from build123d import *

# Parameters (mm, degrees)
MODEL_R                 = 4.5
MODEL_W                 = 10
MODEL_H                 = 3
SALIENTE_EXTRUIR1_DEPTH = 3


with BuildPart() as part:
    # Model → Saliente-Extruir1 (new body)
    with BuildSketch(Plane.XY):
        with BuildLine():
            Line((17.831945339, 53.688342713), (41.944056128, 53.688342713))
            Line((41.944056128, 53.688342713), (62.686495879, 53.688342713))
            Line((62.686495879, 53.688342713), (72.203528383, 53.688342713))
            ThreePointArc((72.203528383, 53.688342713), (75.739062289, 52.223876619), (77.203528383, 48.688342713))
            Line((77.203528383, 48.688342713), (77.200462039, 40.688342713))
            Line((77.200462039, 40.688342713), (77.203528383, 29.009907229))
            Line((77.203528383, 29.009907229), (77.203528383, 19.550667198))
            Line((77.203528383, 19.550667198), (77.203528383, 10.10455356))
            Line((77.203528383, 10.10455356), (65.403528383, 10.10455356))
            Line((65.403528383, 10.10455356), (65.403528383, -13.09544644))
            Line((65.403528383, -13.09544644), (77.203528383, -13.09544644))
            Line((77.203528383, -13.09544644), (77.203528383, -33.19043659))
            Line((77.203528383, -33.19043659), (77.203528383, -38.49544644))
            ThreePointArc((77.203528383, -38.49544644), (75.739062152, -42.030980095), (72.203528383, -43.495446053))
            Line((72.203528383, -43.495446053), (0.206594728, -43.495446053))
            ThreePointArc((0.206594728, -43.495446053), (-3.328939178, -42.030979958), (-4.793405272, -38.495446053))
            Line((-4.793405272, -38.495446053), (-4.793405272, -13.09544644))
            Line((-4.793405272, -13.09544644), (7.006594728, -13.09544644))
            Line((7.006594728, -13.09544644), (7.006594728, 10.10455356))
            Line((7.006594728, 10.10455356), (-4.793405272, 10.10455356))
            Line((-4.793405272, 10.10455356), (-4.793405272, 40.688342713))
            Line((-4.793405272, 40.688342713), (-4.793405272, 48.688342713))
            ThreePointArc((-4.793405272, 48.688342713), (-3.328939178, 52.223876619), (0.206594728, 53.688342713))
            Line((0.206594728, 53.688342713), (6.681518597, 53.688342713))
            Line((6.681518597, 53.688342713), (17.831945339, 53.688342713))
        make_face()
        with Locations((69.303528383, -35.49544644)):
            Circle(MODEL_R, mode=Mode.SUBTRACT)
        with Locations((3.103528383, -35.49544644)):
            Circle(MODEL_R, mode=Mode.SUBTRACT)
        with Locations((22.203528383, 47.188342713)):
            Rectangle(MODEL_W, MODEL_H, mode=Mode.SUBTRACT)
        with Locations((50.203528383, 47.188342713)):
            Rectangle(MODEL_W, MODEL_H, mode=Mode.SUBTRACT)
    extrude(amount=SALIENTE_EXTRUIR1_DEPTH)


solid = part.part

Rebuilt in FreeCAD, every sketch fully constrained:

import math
import FreeCAD as App
import Part
import Sketcher
Q = App.Units.Quantity


def add_polygon(sketch, points):
    """Adds a closed chain of lines whose ends are joined by coincident constraints."""
    first, n = sketch.GeometryCount, len(points)
    for a, b in zip(points, points[1:] + points[:1]):
        sketch.addGeometry(Part.LineSegment(App.Vector(*a, 0), App.Vector(*b, 0)), False)
    for i in range(n):
        sketch.addConstraint(Sketcher.Constraint("Coincident", first + i, 2, first + (i + 1) % n, 1))

doc = App.newDocument("Part")
body = doc.addObject("PartDesign::Body", "Body")

# Sketch on XY plane
sketch1 = body.newObject("Sketcher::SketchObject", "Sketch")
sketch1.AttachmentSupport = (doc.getObject("XY_Plane"), [""])
sketch1.MapMode = "FlatFace"
sketch1.addGeometry(Part.ArcOfCircle(Part.Circle(App.Vector(72.2, 48.7, 0), App.Vector(0, 0, 1), 5), math.radians(0), math.radians(90)), False)  # 0
sketch1.addGeometry(Part.LineSegment(App.Vector(72.2, 53.7, 0), App.Vector(0.2, 53.7, 0)), False)  # 1
sketch1.addGeometry(Part.ArcOfCircle(Part.Circle(App.Vector(0.2, 48.7, 0), App.Vector(0, 0, 1), 5), math.radians(90), math.radians(180)), False)  # 2
sketch1.addGeometry(Part.LineSegment(App.Vector(-4.8, 48.7, 0), App.Vector(-4.8, 10.1, 0)), False)  # 3
sketch1.addGeometry(Part.LineSegment(App.Vector(-4.8, 10.1, 0), App.Vector(7, 10.1, 0)), False)  # 4
sketch1.addGeometry(Part.LineSegment(App.Vector(7, 10.1, 0), App.Vector(7, -13.1, 0)), False)  # 5
sketch1.addGeometry(Part.LineSegment(App.Vector(7, -13.1, 0), App.Vector(-4.8, -13.1, 0)), False)  # 6
sketch1.addGeometry(Part.LineSegment(App.Vector(-4.8, -13.1, 0), App.Vector(-4.8, -38.5, 0)), False)  # 7
sketch1.addGeometry(Part.ArcOfCircle(Part.Circle(App.Vector(0.2, -38.5, 0), App.Vector(0, 0, 1), 5), math.radians(-180), math.radians(-90)), False)  # 8
sketch1.addGeometry(Part.LineSegment(App.Vector(0.2, -43.5, 0), App.Vector(72.2, -43.5, 0)), False)  # 9
sketch1.addGeometry(Part.ArcOfCircle(Part.Circle(App.Vector(72.2, -38.5, 0), App.Vector(0, 0, 1), 5), math.radians(-90), math.radians(0)), False)  # 10
sketch1.addGeometry(Part.LineSegment(App.Vector(77.2, -38.5, 0), App.Vector(77.2, -13.1, 0)), False)  # 11
sketch1.addGeometry(Part.LineSegment(App.Vector(77.2, -13.1, 0), App.Vector(65.4, -13.1, 0)), False)  # 12
sketch1.addGeometry(Part.LineSegment(App.Vector(65.4, -13.1, 0), App.Vector(65.4, 10.1, 0)), False)  # 13
sketch1.addGeometry(Part.LineSegment(App.Vector(65.4, 10.1, 0), App.Vector(77.2, 10.1, 0)), False)  # 14
sketch1.addGeometry(Part.LineSegment(App.Vector(77.2, 10.1, 0), App.Vector(77.2, 29, 0)), False)  # 15
sketch1.addGeometry(Part.LineSegment(App.Vector(77.2, 29, 0), App.Vector(77.2, 40.7, 0)), False)  # 16
sketch1.addGeometry(Part.LineSegment(App.Vector(77.2, 40.7, 0), App.Vector(77.2, 48.7, 0)), False)  # 17
sketch1.addGeometry(Part.Circle(App.Vector(69.3, -35.5, 0), App.Vector(0, 0, 1), 4.5), False)  # 18
sketch1.addGeometry(Part.Circle(App.Vector(3.1, -35.5, 0), App.Vector(0, 0, 1), 4.5), False)  # 19
add_polygon(sketch1, [(45.2, 45.7), (45.2, 48.7), (55.2, 48.7), (55.2, 45.7)])  # lines 20-23
add_polygon(sketch1, [(17.2, 45.7), (17.2, 48.7), (27.2, 48.7), (27.2, 45.7)])  # lines 24-27
sketch1.addConstraint([
    Sketcher.Constraint("Tangent", 0, 2, 1, 1),
    Sketcher.Constraint("Tangent", 1, 2, 2, 1),
    Sketcher.Constraint("Tangent", 2, 2, 3, 1),
    Sketcher.Constraint("Coincident", 3, 2, 4, 1),
    Sketcher.Constraint("Coincident", 4, 2, 5, 1),
    Sketcher.Constraint("Coincident", 5, 2, 6, 1),
    Sketcher.Constraint("Coincident", 6, 2, 7, 1),
    Sketcher.Constraint("Tangent", 7, 2, 8, 1),
    Sketcher.Constraint("Tangent", 8, 2, 9, 1),
    Sketcher.Constraint("Tangent", 9, 2, 10, 1),
    Sketcher.Constraint("Tangent", 10, 2, 11, 1),
    Sketcher.Constraint("Coincident", 11, 2, 12, 1),
    Sketcher.Constraint("Coincident", 12, 2, 13, 1),
    Sketcher.Constraint("Coincident", 13, 2, 14, 1),
    Sketcher.Constraint("Coincident", 14, 2, 15, 1),
    Sketcher.Constraint("Coincident", 15, 2, 16, 1),
    Sketcher.Constraint("Coincident", 16, 2, 17, 1),
    Sketcher.Constraint("Coincident", 17, 2, 0, 1),
    Sketcher.Constraint("Horizontal", 1),
    Sketcher.Constraint("Vertical", 3),
    Sketcher.Constraint("Horizontal", 4),
    Sketcher.Constraint("Vertical", 5),
    Sketcher.Constraint("Horizontal", 6),
    Sketcher.Constraint("Vertical", 7),
    Sketcher.Constraint("Horizontal", 9),
    Sketcher.Constraint("Vertical", 11),
    Sketcher.Constraint("Horizontal", 12),
    Sketcher.Constraint("Vertical", 13),
    Sketcher.Constraint("Horizontal", 14),
    Sketcher.Constraint("Vertical", 15),
    Sketcher.Constraint("Vertical", 20),
    Sketcher.Constraint("Horizontal", 21),
    Sketcher.Constraint("Vertical", 22),
    Sketcher.Constraint("Horizontal", 23),
    Sketcher.Constraint("Vertical", 24),
    Sketcher.Constraint("Horizontal", 25),
    Sketcher.Constraint("Vertical", 26),
    Sketcher.Constraint("Horizontal", 27),
    Sketcher.Constraint("Equal", 0, 2),
    Sketcher.Constraint("Equal", 2, 8),
    Sketcher.Constraint("Equal", 8, 10),
    Sketcher.Constraint("Equal", 18, 19),
    Sketcher.Constraint("Horizontal", 18, 3, 19, 3),
    Sketcher.Constraint("Horizontal", 6, 2, 11, 2),
    Sketcher.Constraint("Horizontal", 4, 2, 13, 2),
    Sketcher.Constraint("Horizontal", 2, 2, 17, 2),
    Sketcher.Constraint("Horizontal", 17, 2, 20, 2),
    Sketcher.Constraint("Horizontal", 21, 2, 24, 2),
    Sketcher.Constraint("Horizontal", 23, 2, 26, 2),
    Sketcher.Constraint("Vertical", 2, 3, 8, 3),
    Sketcher.Constraint("Vertical", 0, 3, 10, 3),
    Sketcher.Constraint("Vertical", 11, 2, 14, 2),
    Sketcher.Constraint("Equal", 6, 12),
    Sketcher.Constraint("Equal", 23, 25),
    Sketcher.Constraint("Diameter", 18, Q("9 mm")),
    Sketcher.Constraint("Radius", 0, Q("5 mm")),
    Sketcher.Constraint("DistanceX", 21, 1, 21, 2, Q("10 mm")),
    Sketcher.Constraint("DistanceY", 20, 1, 20, 2, Q("3 mm")),
    Sketcher.Constraint("Distance", 17, Q("8.000001 mm")),
    Sketcher.Constraint("DistanceX", 4, 1, 4, 2, Q("11.8 mm")),
    Sketcher.Constraint("DistanceY", 5, 2, 5, 1, Q("23.2 mm")),
    Sketcher.Constraint("DistanceY", 7, 2, 7, 1, Q("25.4 mm")),
    Sketcher.Constraint("DistanceY", 10, 3, 18, 3, Q("3 mm")),
    Sketcher.Constraint("DistanceX", 20, 2, 0, 3, Q("27 mm")),
    Sketcher.Constraint("DistanceX", 24, 2, 20, 2, Q("28 mm")),
    Sketcher.Constraint("DistanceX", 18, 3, 10, 3, Q("2.9 mm")),
    Sketcher.Constraint("DistanceX", 19, 3, 18, 3, Q("66.2 mm")),
    Sketcher.Constraint("DistanceY", 3, 2, 3, 1, Q("38.583789 mm")),
    Sketcher.Constraint("DistanceX", 1, 2, 1, 1, Q("71.996934 mm")),
    Sketcher.Constraint("DistanceY", 15, 1, 15, 2, Q("18.905354 mm")),
    Sketcher.Constraint("DistanceX", -1, 1, 0, 3, Q("72.203528 mm")),
    Sketcher.Constraint("DistanceY", -1, 1, 0, 3, Q("48.688343 mm")),
    Sketcher.Constraint("DistanceX", -1, 1, 16, 2, Q("77.200462 mm")),
])
pad1 = body.newObject("PartDesign::Pad", "Pad")
pad1.Profile = sketch1
pad1.Length = 3

doc.recompute()
